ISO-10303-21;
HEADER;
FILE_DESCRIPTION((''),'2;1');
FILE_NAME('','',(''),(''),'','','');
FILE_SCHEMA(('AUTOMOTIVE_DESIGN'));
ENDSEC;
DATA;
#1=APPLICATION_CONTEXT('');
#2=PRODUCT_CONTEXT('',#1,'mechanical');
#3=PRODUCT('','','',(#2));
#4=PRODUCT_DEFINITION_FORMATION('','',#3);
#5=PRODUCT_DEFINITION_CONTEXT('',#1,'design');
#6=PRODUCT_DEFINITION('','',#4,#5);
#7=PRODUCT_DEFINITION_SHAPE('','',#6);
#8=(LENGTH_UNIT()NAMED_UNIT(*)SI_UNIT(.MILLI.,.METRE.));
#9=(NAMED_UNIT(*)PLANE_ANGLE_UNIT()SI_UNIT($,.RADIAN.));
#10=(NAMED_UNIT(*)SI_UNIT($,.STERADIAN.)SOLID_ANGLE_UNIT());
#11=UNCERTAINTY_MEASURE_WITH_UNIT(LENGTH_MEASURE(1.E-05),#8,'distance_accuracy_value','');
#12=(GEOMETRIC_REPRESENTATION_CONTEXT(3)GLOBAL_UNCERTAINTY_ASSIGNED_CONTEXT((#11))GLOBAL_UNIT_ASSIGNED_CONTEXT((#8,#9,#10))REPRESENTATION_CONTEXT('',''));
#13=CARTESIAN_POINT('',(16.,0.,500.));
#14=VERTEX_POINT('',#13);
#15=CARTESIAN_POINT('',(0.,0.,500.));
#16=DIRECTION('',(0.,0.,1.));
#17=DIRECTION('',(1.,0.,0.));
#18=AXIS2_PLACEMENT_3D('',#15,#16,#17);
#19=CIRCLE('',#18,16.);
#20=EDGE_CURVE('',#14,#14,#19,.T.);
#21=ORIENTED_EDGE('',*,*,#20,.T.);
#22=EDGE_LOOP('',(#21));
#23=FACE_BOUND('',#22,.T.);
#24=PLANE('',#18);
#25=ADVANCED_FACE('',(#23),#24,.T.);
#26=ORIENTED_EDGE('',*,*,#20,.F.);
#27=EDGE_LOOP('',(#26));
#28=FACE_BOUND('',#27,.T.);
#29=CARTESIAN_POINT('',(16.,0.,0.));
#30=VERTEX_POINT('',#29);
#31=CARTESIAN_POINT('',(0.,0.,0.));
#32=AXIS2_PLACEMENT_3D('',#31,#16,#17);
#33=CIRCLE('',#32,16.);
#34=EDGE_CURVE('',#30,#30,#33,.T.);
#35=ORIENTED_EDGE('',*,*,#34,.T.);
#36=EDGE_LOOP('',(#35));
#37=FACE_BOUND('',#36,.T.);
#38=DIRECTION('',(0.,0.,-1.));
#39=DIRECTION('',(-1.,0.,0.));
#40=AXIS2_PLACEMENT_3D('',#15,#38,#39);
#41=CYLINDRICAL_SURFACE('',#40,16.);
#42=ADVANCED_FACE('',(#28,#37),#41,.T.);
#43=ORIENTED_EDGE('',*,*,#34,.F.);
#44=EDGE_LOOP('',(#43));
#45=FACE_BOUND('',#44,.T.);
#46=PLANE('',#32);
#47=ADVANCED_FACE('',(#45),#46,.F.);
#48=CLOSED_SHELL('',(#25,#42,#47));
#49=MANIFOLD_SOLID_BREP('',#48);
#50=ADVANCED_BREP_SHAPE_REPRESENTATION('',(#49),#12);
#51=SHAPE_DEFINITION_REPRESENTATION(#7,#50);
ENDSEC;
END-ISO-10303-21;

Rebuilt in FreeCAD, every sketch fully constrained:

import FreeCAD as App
import Part
import Sketcher

doc = App.newDocument("Part")
params = doc.addObject("Spreadsheet::Sheet", "Params")
for row, (alias, value) in enumerate([
    ("sketch1_diameter", "32 mm"),
    ("pad1_length", "500 mm"),
], start=1):
    params.set(f"A{row}", alias)
    params.set(f"B{row}", "=" + value)
    params.setAlias(f"B{row}", alias)

body = doc.addObject("PartDesign::Body", "Body")

# Sketch on XY plane
sketch1 = doc.addObject("Sketcher::SketchObject", "Sketch")
body.addObject(sketch1)
sketch1.AttachmentSupport = (doc.XY_Plane, [""])
sketch1.MapMode = "FlatFace"
sketch1.addGeometry(Part.Circle(App.Vector(0, 0, 0), App.Vector(0, 0, 1), 16), False)
sketch1.addConstraint(Sketcher.Constraint("Coincident", 0, 3, -1, 1))
sketch1.addConstraint(Sketcher.Constraint("Diameter", 0, 32.0))
sketch1.setExpression("Constraints[1]", "Params.sketch1_diameter")
pad1 = doc.addObject("PartDesign::Pad", "Pad")
body.addObject(pad1)
pad1.Profile = sketch1
pad1.setExpression("Length", "Params.pad1_length")

doc.recompute()
